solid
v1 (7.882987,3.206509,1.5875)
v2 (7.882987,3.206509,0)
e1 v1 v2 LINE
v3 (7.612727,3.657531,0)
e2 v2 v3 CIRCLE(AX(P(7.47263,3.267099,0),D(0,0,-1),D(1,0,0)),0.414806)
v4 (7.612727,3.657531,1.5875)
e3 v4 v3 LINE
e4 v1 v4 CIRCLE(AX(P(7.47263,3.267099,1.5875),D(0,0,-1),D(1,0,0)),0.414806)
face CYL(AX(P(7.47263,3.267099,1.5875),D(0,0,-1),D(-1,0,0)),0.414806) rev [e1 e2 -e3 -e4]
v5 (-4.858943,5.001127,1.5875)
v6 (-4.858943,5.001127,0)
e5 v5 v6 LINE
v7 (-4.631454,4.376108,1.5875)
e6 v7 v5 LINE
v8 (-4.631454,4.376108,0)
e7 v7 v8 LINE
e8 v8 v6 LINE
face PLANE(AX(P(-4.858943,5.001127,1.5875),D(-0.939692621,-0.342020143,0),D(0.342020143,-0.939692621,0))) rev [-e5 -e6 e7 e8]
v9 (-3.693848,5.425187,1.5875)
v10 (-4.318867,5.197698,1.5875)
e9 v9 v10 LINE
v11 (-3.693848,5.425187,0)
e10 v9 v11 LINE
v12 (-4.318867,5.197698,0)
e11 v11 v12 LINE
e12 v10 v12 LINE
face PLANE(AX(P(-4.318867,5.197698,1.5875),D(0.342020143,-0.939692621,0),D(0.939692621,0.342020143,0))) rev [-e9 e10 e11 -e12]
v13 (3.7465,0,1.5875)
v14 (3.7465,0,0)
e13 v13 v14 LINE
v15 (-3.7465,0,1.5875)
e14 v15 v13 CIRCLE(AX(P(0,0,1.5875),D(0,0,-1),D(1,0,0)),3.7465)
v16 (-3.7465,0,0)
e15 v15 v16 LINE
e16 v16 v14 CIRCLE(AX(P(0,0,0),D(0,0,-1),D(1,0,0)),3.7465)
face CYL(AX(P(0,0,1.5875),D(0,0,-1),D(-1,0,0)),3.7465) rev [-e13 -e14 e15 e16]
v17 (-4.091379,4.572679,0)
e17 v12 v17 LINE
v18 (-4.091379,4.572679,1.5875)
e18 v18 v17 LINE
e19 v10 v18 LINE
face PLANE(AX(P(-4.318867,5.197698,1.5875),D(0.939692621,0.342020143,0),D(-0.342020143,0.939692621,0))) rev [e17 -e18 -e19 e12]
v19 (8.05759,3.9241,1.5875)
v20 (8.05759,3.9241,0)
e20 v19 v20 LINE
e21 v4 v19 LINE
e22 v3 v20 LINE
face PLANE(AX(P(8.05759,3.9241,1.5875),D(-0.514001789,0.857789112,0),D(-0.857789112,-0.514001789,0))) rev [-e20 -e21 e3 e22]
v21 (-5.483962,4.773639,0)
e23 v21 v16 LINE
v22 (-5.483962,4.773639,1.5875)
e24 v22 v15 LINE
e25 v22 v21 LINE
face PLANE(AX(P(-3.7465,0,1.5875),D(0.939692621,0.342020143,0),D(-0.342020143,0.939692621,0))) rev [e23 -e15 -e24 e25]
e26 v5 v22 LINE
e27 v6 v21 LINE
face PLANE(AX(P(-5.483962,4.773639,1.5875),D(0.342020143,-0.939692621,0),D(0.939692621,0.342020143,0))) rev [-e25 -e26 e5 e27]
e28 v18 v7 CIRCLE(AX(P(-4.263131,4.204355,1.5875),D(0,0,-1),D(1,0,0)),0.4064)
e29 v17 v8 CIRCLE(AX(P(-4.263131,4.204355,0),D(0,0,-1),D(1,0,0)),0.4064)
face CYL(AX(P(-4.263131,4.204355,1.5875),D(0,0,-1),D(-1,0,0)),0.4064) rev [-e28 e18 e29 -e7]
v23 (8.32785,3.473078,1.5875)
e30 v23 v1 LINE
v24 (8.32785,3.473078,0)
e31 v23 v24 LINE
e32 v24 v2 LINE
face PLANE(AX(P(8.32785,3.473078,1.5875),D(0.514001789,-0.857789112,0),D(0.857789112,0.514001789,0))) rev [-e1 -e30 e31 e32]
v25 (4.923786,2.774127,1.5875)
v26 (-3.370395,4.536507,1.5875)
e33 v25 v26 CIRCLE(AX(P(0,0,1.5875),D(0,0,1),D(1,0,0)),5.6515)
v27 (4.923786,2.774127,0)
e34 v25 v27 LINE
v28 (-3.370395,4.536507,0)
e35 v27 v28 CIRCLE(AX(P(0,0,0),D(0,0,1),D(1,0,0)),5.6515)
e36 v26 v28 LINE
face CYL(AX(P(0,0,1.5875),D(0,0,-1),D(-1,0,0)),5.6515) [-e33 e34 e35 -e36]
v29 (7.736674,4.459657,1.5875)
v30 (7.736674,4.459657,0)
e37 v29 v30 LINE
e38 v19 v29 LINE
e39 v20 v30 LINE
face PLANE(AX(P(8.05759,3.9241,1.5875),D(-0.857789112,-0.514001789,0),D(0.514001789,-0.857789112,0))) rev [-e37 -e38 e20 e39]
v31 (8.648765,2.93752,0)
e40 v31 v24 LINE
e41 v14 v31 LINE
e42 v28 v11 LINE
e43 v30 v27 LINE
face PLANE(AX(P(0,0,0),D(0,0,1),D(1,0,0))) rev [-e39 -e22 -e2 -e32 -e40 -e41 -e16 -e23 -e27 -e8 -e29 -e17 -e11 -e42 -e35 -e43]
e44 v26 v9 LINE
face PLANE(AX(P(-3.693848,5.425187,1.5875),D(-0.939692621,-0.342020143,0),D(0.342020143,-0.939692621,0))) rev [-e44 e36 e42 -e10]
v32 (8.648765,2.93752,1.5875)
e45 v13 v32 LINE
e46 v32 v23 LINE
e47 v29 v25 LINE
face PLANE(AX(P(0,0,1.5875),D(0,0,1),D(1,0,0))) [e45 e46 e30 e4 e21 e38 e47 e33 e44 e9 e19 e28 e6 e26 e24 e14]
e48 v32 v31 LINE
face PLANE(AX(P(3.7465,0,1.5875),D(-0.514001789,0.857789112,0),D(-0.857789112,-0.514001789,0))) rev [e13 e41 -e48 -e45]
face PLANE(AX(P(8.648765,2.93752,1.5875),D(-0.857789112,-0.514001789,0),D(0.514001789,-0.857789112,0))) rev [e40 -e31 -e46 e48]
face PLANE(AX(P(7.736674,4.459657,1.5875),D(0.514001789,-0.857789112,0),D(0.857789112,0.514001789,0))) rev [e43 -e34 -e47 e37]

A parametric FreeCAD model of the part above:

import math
import FreeCAD as App
import Part
import Sketcher

V = App.Vector
Q = App.Units.Quantity

doc = App.newDocument("Part")
body = doc.addObject("PartDesign::Body", "Body")

sketch1 = doc.addObject("Sketcher::SketchObject", "Sketch")
body.addObject(sketch1)
sketch1.AttachmentSupport = (doc.XY_Plane, [""])
sketch1.MapMode = "FlatFace"
sketch1.addGeometry([
    Part.LineSegment(V(-5.48, 4.77, 0), V(-3.75, 0, 0)),
    Part.ArcOfCircle(Part.Circle(V(0, 0, 0), V(0, 0, 1), 3.75), math.radians(0), math.radians(180)),
    Part.LineSegment(V(3.75, 0, 0), V(8.65, 2.94, 0)),
    Part.LineSegment(V(8.65, 2.94, 0), V(8.33, 3.47, 0)),
    Part.LineSegment(V(8.33, 3.47, 0), V(7.88, 3.21, 0)),
    Part.ArcOfCircle(Part.Circle(V(7.47, 3.27, 0), V(0, 0, 1), 0.41), math.radians(70), math.radians(352)),
    Part.LineSegment(V(7.61, 3.66, 0), V(8.06, 3.92, 0)),
    Part.LineSegment(V(8.06, 3.92, 0), V(7.74, 4.46, 0)),
    Part.LineSegment(V(7.74, 4.46, 0), V(4.92, 2.77, 0)),
    Part.ArcOfCircle(Part.Circle(V(0, 0, 0), V(0, 0, 1), 5.65), math.radians(29), math.radians(127)),
    Part.LineSegment(V(-3.37, 4.54, 0), V(-3.69, 5.43, 0)),
    Part.LineSegment(V(-3.69, 5.43, 0), V(-4.32, 5.2, 0)),
    Part.LineSegment(V(-4.32, 5.2, 0), V(-4.09, 4.57, 0)),
    Part.ArcOfCircle(Part.Circle(V(-4.26, 4.2, 0), V(0, 0, 1), 0.41), math.radians(155), math.radians(425)),
    Part.LineSegment(V(-4.63, 4.38, 0), V(-4.86, 5, 0)),
    Part.LineSegment(V(-4.86, 5, 0), V(-5.48, 4.77, 0)),
], False)
sketch1.addConstraint([
    Sketcher.Constraint("Coincident", 0, 2, 1, 2),
    Sketcher.Constraint("Coincident", 1, 1, 2, 1),
    Sketcher.Constraint("Coincident", 2, 2, 3, 1),
    Sketcher.Constraint("Coincident", 3, 2, 4, 1),
    Sketcher.Constraint("Coincident", 4, 2, 5, 2),
    Sketcher.Constraint("Coincident", 5, 1, 6, 1),
    Sketcher.Constraint("Coincident", 6, 2, 7, 1),
    Sketcher.Constraint("Coincident", 7, 2, 8, 1),
    Sketcher.Constraint("Coincident", 8, 2, 9, 1),
    Sketcher.Constraint("Coincident", 9, 2, 10, 1),
    Sketcher.Constraint("Coincident", 10, 2, 11, 1),
    Sketcher.Constraint("Coincident", 11, 2, 12, 1),
    Sketcher.Constraint("Coincident", 12, 2, 13, 2),
    Sketcher.Constraint("Coincident", 13, 1, 14, 1),
    Sketcher.Constraint("Coincident", 14, 2, 15, 1),
    Sketcher.Constraint("Coincident", 15, 2, 0, 1),
    Sketcher.Constraint("Coincident", 1, 3, -1, 1),
    Sketcher.Constraint("Coincident", 9, 3, -1, 1),
    Sketcher.Constraint("PointOnObject", 0, 2, -1),
    Sketcher.Constraint("PointOnObject", 1, 1, -1),
    Sketcher.Constraint("Perpendicular", 2, 3),
    Sketcher.Constraint("Perpendicular", 3, 4),
    Sketcher.Constraint("Parallel", 4, 6),
    Sketcher.Constraint("Perpendicular", 6, 7),
    Sketcher.Constraint("Perpendicular", 7, 8),
    Sketcher.Constraint("Parallel", 0, 10),
    Sketcher.Constraint("Perpendicular", 10, 11),
    Sketcher.Constraint("Perpendicular", 11, 12),
    Sketcher.Constraint("Parallel", 12, 14),
    Sketcher.Constraint("Perpendicular", 14, 15),
    Sketcher.Constraint("Equal", 4, 6),
    Sketcher.Constraint("Equal", 3, 7),
    Sketcher.Constraint("Equal", 11, 12),
    Sketcher.Constraint("Equal", 12, 14),
    Sketcher.Constraint("Equal", 14, 15),
    Sketcher.Constraint("Angle", 0, Q("-70 deg")),
    Sketcher.Constraint("Radius", 13, Q("0.016 in")),
    Sketcher.Constraint("Distance", 0, Q("0.2 in")),
    Sketcher.Constraint("Radius", 1, Q("0.1475 in")),
    Sketcher.Constraint("Radius", 9, Q("0.2225 in")),
    Sketcher.Constraint("Distance", 2, Q("0.225 in")),
    Sketcher.Constraint("Radius", 5, Q("0.414806 mm")),
    Sketcher.Constraint("DistanceY", 5, 3, 13, 3, Q("0.0368999 in")),
    Sketcher.Constraint("DistanceY", -1, 1, 5, 3, Q("3.267099 mm")),
    Sketcher.Constraint("DistanceY", -1, 1, 6, 2, Q("3.9241 mm")),
    Sketcher.Constraint("DistanceY", -1, 1, 11, 2, Q("5.197698 mm")),
    Sketcher.Constraint("DistanceX", 8, 2, 4, 2, Q("2.959201 mm")),
    Sketcher.Constraint("DistanceY", 13, 1, 9, 2, Q("0.160399 mm")),
    Sketcher.Constraint("Distance", 8, Q("3.27923 mm")),
    Sketcher.Constraint("DistanceX", -1, 1, 5, 3, Q("7.47263 mm")),
])
pad1 = doc.addObject("PartDesign::Pad", "Pad")
body.addObject(pad1)
pad1.Profile = sketch1
pad1.Length = Q("0.0625 in")

doc.recompute()
